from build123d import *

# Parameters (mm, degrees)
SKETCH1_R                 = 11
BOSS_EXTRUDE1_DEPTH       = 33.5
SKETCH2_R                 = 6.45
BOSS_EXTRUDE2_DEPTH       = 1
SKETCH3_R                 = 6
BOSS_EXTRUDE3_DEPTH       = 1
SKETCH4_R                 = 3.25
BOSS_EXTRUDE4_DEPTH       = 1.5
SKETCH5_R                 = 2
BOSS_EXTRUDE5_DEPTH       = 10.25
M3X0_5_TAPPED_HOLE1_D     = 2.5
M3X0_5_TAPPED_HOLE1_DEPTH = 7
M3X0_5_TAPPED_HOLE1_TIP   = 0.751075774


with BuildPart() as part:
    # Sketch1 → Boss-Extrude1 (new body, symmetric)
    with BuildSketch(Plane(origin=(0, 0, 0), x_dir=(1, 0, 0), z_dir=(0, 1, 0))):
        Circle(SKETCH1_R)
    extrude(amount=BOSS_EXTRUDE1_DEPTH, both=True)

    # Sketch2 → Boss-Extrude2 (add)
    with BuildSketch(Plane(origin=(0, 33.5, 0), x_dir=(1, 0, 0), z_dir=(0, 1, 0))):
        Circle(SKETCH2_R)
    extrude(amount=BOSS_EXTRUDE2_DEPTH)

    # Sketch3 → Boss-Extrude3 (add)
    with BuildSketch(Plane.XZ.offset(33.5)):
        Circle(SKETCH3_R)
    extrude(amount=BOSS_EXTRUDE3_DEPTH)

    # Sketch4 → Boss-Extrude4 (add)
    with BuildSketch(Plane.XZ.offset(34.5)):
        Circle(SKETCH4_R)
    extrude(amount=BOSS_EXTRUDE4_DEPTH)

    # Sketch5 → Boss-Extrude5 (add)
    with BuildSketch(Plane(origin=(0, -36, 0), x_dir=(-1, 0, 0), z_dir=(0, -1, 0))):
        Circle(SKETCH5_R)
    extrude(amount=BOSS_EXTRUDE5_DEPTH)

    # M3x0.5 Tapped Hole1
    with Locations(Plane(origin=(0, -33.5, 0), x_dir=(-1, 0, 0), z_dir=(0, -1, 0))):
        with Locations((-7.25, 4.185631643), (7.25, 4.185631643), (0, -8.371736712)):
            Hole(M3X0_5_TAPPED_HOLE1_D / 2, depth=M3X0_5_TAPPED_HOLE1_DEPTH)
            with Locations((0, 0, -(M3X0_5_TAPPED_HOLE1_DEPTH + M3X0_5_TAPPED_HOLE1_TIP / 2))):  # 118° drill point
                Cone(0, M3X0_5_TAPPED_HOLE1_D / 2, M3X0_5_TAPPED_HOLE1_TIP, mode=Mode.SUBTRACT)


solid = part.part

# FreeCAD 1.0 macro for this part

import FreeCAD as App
import Part
import Sketcher
from FreeCAD import Vector
Q = App.Units.Quantity

doc = App.newDocument("Part")
body = doc.addObject("PartDesign::Body", "Body")

sketch1 = body.newObject("Sketcher::SketchObject", "Sketch")
sketch1.AttachmentSupport = (doc.getObject("XZ_Plane"), [""])
sketch1.MapMode = "FlatFace"
sketch1.addGeometry(Part.Circle(Vector(0, 0, 0), Vector(0, 0, 1), 11), False)
sketch1.addConstraint([
    Sketcher.Constraint("Coincident", 0, 3, -1, 1),
    Sketcher.Constraint("Diameter", 0, Q("22 mm")),
])
pad1 = body.newObject("PartDesign::Pad", "Pad")
pad1.Profile = sketch1
pad1.Length = 67
pad1.Midplane = True

sketch2 = body.newObject("Sketcher::SketchObject", "Sketch001")
sketch2.AttachmentSupport = (doc.getObject("XZ_Plane"), [""])
sketch2.MapMode = "FlatFace"
sketch2.AttachmentOffset = App.Placement(Vector(0, 0, -33.5), App.Rotation())
sketch2.addGeometry(Part.Circle(Vector(0, 0, 0), Vector(0, 0, 1), 6.45), False)
sketch2.addConstraint([
    Sketcher.Constraint("Coincident", 0, 3, -1, 1),
    Sketcher.Constraint("Diameter", 0, Q("12.9 mm")),
])
pad2 = body.newObject("PartDesign::Pad", "Pad001")
pad2.Profile = sketch2
pad2.Length = 1
pad2.Reversed = True

sketch3 = body.newObject("Sketcher::SketchObject", "Sketch002")
sketch3.AttachmentSupport = (doc.getObject("XZ_Plane"), [""])
sketch3.MapMode = "FlatFace"
sketch3.AttachmentOffset = App.Placement(Vector(0, 0, 33.5), App.Rotation())
sketch3.addGeometry(Part.Circle(Vector(0, 0, 0), Vector(0, 0, 1), 6), False)
sketch3.addConstraint([
    Sketcher.Constraint("Coincident", 0, 3, -1, 1),
    Sketcher.Constraint("Diameter", 0, Q("12 mm")),
])
pad3 = body.newObject("PartDesign::Pad", "Pad002")
pad3.Profile = sketch3
pad3.Length = 1

sketch4 = body.newObject("Sketcher::SketchObject", "Sketch003")
sketch4.AttachmentSupport = (doc.getObject("XZ_Plane"), [""])
sketch4.MapMode = "FlatFace"
sketch4.AttachmentOffset = App.Placement(Vector(0, 0, 34.5), App.Rotation())
sketch4.addGeometry(Part.Circle(Vector(0, 0, 0), Vector(0, 0, 1), 3.25), False)
sketch4.addConstraint([
    Sketcher.Constraint("Coincident", 0, 3, -1, 1),
    Sketcher.Constraint("Diameter", 0, Q("6.5 mm")),
])
pad4 = body.newObject("PartDesign::Pad", "Pad003")
pad4.Profile = sketch4
pad4.Length = 1.5

sketch5 = body.newObject("Sketcher::SketchObject", "Sketch004")
sketch5.AttachmentSupport = (doc.getObject("XZ_Plane"), [""])
sketch5.MapMode = "FlatFace"
sketch5.AttachmentOffset = App.Placement(Vector(0, 0, 36), App.Rotation())
sketch5.addGeometry(Part.Circle(Vector(0, 0, 0), Vector(0, 0, 1), 2), False)
sketch5.addConstraint([
    Sketcher.Constraint("Coincident", 0, 3, -1, 1),
    Sketcher.Constraint("Diameter", 0, Q("4 mm")),
])
pad5 = body.newObject("PartDesign::Pad", "Pad004")
pad5.Profile = sketch5
pad5.Length = 10.25

sketch6 = body.newObject("Sketcher::SketchObject", "Sketch005")
sketch6.AttachmentSupport = (doc.getObject("XZ_Plane"), [""])
sketch6.MapMode = "FlatFace"
sketch6.AttachmentOffset = App.Placement(Vector(0, 0, 33.5), App.Rotation())
sketch6.addGeometry([
    Part.Circle(Vector(7.25, -4.185632, 0), Vector(0, 0, 1), 1.25),
    Part.Circle(Vector(-7.25, -4.185632, 0), Vector(0, 0, 1), 1.25),
    Part.Circle(Vector(0, 8.371737, 0), Vector(0, 0, 1), 1.25),
], False)
sketch6.addConstraint([
    Sketcher.Constraint("Equal", 0, 1),
    Sketcher.Constraint("Equal", 1, 2),
    Sketcher.Constraint("Symmetric", 0, 3, 1, 3, -2),
    Sketcher.Constraint("PointOnObject", 2, 3, -2),
    Sketcher.Constraint("Diameter", 0, Q("2.5 mm")),
    Sketcher.Constraint("DistanceX", 1, 3, 0, 3, Q("14.5 mm")),
    Sketcher.Constraint("DistanceY", 0, 3, -1, 1, Q("4.185632 mm")),
    Sketcher.Constraint("DistanceY", 0, 3, 2, 3, Q("12.557368 mm")),
])
doc.recompute()
hole = body.newObject("PartDesign::Hole", "Hole")
hole.Profile = sketch6
hole.ThreadType = "None"
hole.Diameter = 2.5
hole.DepthType = "Dimension"
hole.Depth = 7
hole.DrillPoint = "Angled"
hole.DrillPointAngle = 118

doc.recompute()
